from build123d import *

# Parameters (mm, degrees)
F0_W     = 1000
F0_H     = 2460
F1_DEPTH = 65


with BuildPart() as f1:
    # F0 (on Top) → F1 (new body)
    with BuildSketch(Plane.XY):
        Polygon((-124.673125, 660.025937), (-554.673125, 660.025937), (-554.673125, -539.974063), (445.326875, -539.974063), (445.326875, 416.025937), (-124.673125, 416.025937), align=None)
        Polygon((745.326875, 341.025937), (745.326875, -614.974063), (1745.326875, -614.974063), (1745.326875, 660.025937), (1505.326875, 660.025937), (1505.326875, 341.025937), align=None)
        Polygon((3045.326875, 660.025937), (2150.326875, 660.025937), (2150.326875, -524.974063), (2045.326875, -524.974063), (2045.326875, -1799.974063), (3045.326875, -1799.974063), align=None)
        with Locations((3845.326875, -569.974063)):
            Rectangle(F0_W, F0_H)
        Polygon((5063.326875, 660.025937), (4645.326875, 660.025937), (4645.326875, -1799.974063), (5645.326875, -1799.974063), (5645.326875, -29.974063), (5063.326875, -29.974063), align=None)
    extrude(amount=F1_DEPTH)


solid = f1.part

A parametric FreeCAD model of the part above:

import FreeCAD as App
import Part
import Sketcher
Q = App.Units.Quantity


def add_polygon(sketch, points):
    """Adds a closed chain of lines whose ends are joined by coincident constraints."""
    first, n = sketch.GeometryCount, len(points)
    for a, b in zip(points, points[1:] + points[:1]):
        sketch.addGeometry(Part.LineSegment(App.Vector(*a, 0), App.Vector(*b, 0)), False)
    for i in range(n):
        sketch.addConstraint(Sketcher.Constraint("Coincident", first + i, 2, first + (i + 1) % n, 1))

doc = App.newDocument("Part")
params = doc.addObject("Spreadsheet::Sheet", "Params")
for row, (alias, value) in enumerate([
    ("sketch1_width", "430 mm"),
    ("sketch1_width2", "1000 mm"),
    ("sketch1_width3", "240 mm"),
    ("sketch1_width4", "895 mm"),
    ("sketch1_width5", "418 mm"),
    ("pad1_length", "65 mm"),
], start=1):
    params.set(f"A{row}", alias)
    params.set(f"B{row}", "=" + value)
    params.setAlias(f"B{row}", alias)

body = doc.addObject("PartDesign::Body", "Body")
body.AllowCompound = True

# Sketch on XY plane
sketch1 = doc.addObject("Sketcher::SketchObject", "Sketch")
body.addObject(sketch1)
sketch1.AttachmentSupport = (doc.XY_Plane, [""])
sketch1.MapMode = "FlatFace"
add_polygon(sketch1, [(-125, 660), (-555, 660), (-555, -540), (445, -540), (445, 416), (-125, 416)])  # lines 0-5
add_polygon(sketch1, [(745, 341), (745, -615), (1745, -615), (1745, 660), (1505, 660), (1505, 341)])  # lines 6-11
add_polygon(sketch1, [(3045, 660), (2150, 660), (2150, -525), (2045, -525), (2045, -1800), (3045, -1800)])  # lines 12-17
add_polygon(sketch1, [(3345, 660), (3345, -1800), (4345, -1800), (4345, 660)])  # lines 18-21
add_polygon(sketch1, [(5063, 660), (4645, 660), (4645, -1800), (5645, -1800), (5645, -30), (5063, -30)])  # lines 22-27
sketch1.addConstraint(Sketcher.Constraint("Horizontal", 0))
sketch1.addConstraint(Sketcher.Constraint("Vertical", 1))
sketch1.addConstraint(Sketcher.Constraint("Horizontal", 2))
sketch1.addConstraint(Sketcher.Constraint("Vertical", 3))
sketch1.addConstraint(Sketcher.Constraint("Horizontal", 4))
sketch1.addConstraint(Sketcher.Constraint("Vertical", 5))
sketch1.addConstraint(Sketcher.Constraint("Vertical", 6))
sketch1.addConstraint(Sketcher.Constraint("Horizontal", 7))
sketch1.addConstraint(Sketcher.Constraint("Vertical", 8))
sketch1.addConstraint(Sketcher.Constraint("Horizontal", 9))
sketch1.addConstraint(Sketcher.Constraint("Vertical", 10))
sketch1.addConstraint(Sketcher.Constraint("Horizontal", 11))
sketch1.addConstraint(Sketcher.Constraint("Horizontal", 12))
sketch1.addConstraint(Sketcher.Constraint("Vertical", 13))
sketch1.addConstraint(Sketcher.Constraint("Horizontal", 14))
sketch1.addConstraint(Sketcher.Constraint("Vertical", 15))
sketch1.addConstraint(Sketcher.Constraint("Horizontal", 16))
sketch1.addConstraint(Sketcher.Constraint("Vertical", 17))
sketch1.addConstraint(Sketcher.Constraint("Vertical", 18))
sketch1.addConstraint(Sketcher.Constraint("Horizontal", 19))
sketch1.addConstraint(Sketcher.Constraint("Vertical", 20))
sketch1.addConstraint(Sketcher.Constraint("Horizontal", 21))
sketch1.addConstraint(Sketcher.Constraint("Horizontal", 22))
sketch1.addConstraint(Sketcher.Constraint("Vertical", 23))
sketch1.addConstraint(Sketcher.Constraint("Horizontal", 24))
sketch1.addConstraint(Sketcher.Constraint("Vertical", 25))
sketch1.addConstraint(Sketcher.Constraint("Horizontal", 26))
sketch1.addConstraint(Sketcher.Constraint("Vertical", 27))
sketch1.addConstraint(Sketcher.Constraint("Horizontal", 5, 2, 8, 2))
sketch1.addConstraint(Sketcher.Constraint("Horizontal", 9, 2, 12, 2))
sketch1.addConstraint(Sketcher.Constraint("Horizontal", 16, 2, 18, 2))
sketch1.addConstraint(Sketcher.Constraint("Horizontal", 17, 2, 20, 2))
sketch1.addConstraint(Sketcher.Constraint("Horizontal", 21, 2, 22, 2))
sketch1.addConstraint(Sketcher.Constraint("Horizontal", 19, 2, 23, 2))
sketch1.addConstraint(Sketcher.Constraint("Equal", 2, 7))
sketch1.addConstraint(Sketcher.Constraint("Equal", 7, 16))
sketch1.addConstraint(Sketcher.Constraint("Equal", 16, 19))
sketch1.addConstraint(Sketcher.Constraint("Equal", 21, 24))
sketch1.addConstraint(Sketcher.Constraint("Equal", 3, 6))
sketch1.addConstraint(Sketcher.Constraint("Equal", 8, 15))
sketch1.addConstraint(Sketcher.Constraint("DistanceX", 0, 2, 0, 1, Q("430 mm")))
sketch1.addConstraint(Sketcher.Constraint("DistanceX", 2, 1, 2, 2, Q("1000 mm")))
sketch1.addConstraint(Sketcher.Constraint("DistanceX", 9, 2, 9, 1, Q("240 mm")))
sketch1.addConstraint(Sketcher.Constraint("DistanceX", 12, 2, 12, 1, Q("895 mm")))
sketch1.addConstraint(Sketcher.Constraint("DistanceX", 22, 2, 22, 1, Q("418 mm")))
sketch1.addConstraint(Sketcher.Constraint("DistanceY", 1, 2, 1, 1, Q("1200 mm")))
sketch1.addConstraint(Sketcher.Constraint("DistanceY", 3, 1, 3, 2, Q("956 mm")))
sketch1.addConstraint(Sketcher.Constraint("DistanceY", 8, 1, 8, 2, Q("1275 mm")))
sketch1.addConstraint(Sketcher.Constraint("DistanceY", 13, 2, 13, 1, Q("1185 mm")))
sketch1.addConstraint(Sketcher.Constraint("DistanceY", 25, 1, 25, 2, Q("1770 mm")))
sketch1.addConstraint(Sketcher.Constraint("DistanceX", 2, 2, 6, 2, Q("300 mm")))
sketch1.addConstraint(Sketcher.Constraint("DistanceX", 8, 2, 12, 2, Q("405 mm")))
sketch1.addConstraint(Sketcher.Constraint("DistanceX", 16, 2, 18, 2, Q("300 mm")))
sketch1.addConstraint(Sketcher.Constraint("DistanceX", 20, 2, 22, 2, Q("300 mm")))
sketch1.addConstraint(Sketcher.Constraint("DistanceX", 0, 2, -1, 1, Q("554.673125 mm")))
sketch1.addConstraint(Sketcher.Constraint("DistanceY", -1, 1, 0, 2, Q("660.025937 mm")))
sketch1.setExpression("Constraints[68]", "Params.sketch1_width")
sketch1.setExpression("Constraints[69]", "Params.sketch1_width2")
sketch1.setExpression("Constraints[70]", "Params.sketch1_width3")
sketch1.setExpression("Constraints[71]", "Params.sketch1_width4")
sketch1.setExpression("Constraints[72]", "Params.sketch1_width5")
pad1 = doc.addObject("PartDesign::Pad", "Pad")
body.addObject(pad1)
pad1.Profile = sketch1
pad1.setExpression("Length", "Params.pad1_length")

doc.recompute()
